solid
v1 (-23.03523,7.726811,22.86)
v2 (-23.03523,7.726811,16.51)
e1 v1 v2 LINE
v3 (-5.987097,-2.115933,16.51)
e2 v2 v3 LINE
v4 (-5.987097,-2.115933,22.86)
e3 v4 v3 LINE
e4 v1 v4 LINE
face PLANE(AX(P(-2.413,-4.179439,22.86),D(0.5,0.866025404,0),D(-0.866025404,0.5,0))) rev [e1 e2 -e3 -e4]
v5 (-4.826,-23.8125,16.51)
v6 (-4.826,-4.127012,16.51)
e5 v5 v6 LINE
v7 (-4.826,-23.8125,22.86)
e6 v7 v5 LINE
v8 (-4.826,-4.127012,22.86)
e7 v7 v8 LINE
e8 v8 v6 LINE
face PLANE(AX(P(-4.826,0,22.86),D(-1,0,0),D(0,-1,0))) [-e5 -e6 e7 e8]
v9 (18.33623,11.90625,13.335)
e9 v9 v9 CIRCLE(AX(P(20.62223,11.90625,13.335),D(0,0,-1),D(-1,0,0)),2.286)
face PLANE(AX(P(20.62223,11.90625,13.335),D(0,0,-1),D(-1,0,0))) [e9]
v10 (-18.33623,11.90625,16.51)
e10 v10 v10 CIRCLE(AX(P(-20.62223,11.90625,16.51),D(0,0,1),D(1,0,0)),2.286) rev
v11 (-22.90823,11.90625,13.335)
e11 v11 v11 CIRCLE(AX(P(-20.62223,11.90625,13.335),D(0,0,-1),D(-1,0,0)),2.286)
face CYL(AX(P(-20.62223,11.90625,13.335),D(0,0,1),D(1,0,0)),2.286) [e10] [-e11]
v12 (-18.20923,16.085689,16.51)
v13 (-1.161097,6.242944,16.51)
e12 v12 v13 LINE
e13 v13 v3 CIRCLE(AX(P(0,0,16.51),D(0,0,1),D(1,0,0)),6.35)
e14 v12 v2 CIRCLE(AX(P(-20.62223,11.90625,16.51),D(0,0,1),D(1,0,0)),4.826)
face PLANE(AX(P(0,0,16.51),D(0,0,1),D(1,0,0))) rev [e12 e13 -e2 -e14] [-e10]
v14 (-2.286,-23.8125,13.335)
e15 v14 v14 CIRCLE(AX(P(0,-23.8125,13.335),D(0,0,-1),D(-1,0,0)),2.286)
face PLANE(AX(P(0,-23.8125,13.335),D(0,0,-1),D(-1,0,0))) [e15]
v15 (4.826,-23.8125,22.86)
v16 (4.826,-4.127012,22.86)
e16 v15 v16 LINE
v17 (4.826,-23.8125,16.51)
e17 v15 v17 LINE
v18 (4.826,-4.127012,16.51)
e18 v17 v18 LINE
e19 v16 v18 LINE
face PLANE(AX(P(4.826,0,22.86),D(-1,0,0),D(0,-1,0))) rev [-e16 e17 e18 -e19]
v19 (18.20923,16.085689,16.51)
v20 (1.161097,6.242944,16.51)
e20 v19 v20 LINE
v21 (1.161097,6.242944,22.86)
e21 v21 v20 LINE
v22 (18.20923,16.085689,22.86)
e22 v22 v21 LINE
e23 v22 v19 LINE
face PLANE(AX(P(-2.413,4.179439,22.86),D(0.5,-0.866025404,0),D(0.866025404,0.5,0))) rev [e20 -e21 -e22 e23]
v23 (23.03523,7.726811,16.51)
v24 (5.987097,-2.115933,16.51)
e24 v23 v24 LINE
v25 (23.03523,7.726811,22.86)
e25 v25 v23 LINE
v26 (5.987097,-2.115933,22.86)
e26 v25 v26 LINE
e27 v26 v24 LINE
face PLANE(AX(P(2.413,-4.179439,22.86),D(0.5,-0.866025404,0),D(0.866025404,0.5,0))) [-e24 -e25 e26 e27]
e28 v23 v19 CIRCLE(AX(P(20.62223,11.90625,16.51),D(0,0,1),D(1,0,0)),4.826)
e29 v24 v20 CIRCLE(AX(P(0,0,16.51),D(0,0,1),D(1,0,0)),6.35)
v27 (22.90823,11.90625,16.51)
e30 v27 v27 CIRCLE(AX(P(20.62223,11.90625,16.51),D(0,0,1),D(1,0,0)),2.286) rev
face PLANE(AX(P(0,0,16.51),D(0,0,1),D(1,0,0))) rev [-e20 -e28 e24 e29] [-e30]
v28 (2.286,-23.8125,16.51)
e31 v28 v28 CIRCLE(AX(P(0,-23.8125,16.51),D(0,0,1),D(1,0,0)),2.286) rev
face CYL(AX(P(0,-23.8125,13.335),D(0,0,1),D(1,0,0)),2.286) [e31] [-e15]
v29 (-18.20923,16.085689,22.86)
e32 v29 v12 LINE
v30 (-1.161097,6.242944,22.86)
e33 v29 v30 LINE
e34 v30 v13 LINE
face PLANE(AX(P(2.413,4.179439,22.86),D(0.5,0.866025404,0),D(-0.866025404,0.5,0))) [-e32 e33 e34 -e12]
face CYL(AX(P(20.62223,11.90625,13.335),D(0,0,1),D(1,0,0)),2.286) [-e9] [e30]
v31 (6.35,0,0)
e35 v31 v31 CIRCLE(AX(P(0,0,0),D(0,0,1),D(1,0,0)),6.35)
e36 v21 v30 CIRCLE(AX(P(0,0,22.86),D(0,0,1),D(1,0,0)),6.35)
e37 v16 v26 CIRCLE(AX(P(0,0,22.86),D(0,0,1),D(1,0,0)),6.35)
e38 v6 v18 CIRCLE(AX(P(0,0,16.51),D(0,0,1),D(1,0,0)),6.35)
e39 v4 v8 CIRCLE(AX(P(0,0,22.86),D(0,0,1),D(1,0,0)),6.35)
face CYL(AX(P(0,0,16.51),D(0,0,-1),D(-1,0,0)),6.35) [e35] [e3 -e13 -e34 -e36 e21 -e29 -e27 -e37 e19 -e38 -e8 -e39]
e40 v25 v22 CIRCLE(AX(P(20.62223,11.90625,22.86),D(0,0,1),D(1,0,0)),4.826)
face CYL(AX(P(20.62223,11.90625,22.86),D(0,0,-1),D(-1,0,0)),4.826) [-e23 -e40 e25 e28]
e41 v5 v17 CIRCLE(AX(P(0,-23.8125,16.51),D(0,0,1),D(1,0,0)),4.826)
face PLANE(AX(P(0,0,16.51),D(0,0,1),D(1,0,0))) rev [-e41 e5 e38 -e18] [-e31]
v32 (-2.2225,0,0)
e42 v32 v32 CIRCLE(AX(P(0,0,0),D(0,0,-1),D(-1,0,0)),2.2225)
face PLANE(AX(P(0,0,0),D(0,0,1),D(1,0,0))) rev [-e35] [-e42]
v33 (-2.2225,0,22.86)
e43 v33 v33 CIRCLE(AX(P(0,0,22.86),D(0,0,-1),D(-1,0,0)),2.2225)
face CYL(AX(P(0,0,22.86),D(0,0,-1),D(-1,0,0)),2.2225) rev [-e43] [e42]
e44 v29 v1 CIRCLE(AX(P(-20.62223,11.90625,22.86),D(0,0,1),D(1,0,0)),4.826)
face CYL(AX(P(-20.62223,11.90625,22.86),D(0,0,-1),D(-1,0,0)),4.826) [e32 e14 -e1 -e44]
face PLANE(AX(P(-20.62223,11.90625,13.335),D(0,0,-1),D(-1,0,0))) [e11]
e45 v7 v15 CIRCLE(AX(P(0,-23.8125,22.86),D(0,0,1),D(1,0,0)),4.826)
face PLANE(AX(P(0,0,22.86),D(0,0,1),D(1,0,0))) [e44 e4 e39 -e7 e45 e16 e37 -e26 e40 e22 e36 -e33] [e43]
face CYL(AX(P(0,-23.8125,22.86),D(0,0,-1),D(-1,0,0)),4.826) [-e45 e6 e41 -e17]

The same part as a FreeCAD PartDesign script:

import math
import FreeCAD as App
import Part
import Sketcher
Q = App.Units.Quantity

doc = App.newDocument("Part")
body = doc.addObject("PartDesign::Body", "Body")

# Sketch on XY plane
sketch1 = doc.addObject("Sketcher::SketchObject", "Sketch")
body.addObject(sketch1)
sketch1.AttachmentSupport = (doc.XY_Plane, [""])
sketch1.MapMode = "FlatFace"
sketch1.addGeometry(Part.Circle(App.Vector(0, 0, 0), App.Vector(0, 0, 1), 6.35), False)
sketch1.addConstraint(Sketcher.Constraint("Coincident", 0, 3, -1, 1))
sketch1.addConstraint(Sketcher.Constraint("Diameter", 0, Q("0.5 in")))
pad1 = doc.addObject("PartDesign::Pad", "Pad")
body.addObject(pad1)
pad1.Profile = sketch1
pad1.Length = Q("0.65 in")

# Sketch on XY plane
sketch2 = doc.addObject("Sketcher::SketchObject", "Sketch001")
body.addObject(sketch2)
sketch2.AttachmentSupport = (doc.XY_Plane, [""])
sketch2.MapMode = "FlatFace"
sketch2.AttachmentOffset = App.Placement(App.Vector(0, 0, 0.65 * 25.4), App.Rotation())
sketch2.addGeometry(Part.LineSegment(App.Vector(-4.826, -4.127012, 0), App.Vector(-4.826, -23.8125, 0)), False)
sketch2.addGeometry(Part.ArcOfCircle(Part.Circle(App.Vector(0, -23.8125, 0), App.Vector(0, 0, 1), 4.826), math.radians(180), math.radians(360)), False)
sketch2.addGeometry(Part.LineSegment(App.Vector(4.826, -23.8125, 0), App.Vector(4.826, -4.127012, 0)), False)
sketch2.addGeometry(Part.ArcOfCircle(Part.Circle(App.Vector(0, 0, 0), App.Vector(0, 0, 1), 6.35), math.radians(-40.535802), math.radians(-19.464198)), False)
sketch2.addGeometry(Part.LineSegment(App.Vector(5.987097, -2.115933, 0), App.Vector(23.03523, 7.726811, 0)), False)
sketch2.addGeometry(Part.ArcOfCircle(Part.Circle(App.Vector(20.62223, 11.90625, 0), App.Vector(0, 0, 1), 4.826), math.radians(-60), math.radians(120)), False)
sketch2.addGeometry(Part.LineSegment(App.Vector(18.20923, 16.085689, 0), App.Vector(1.161097, 6.242944, 0)), False)
sketch2.addGeometry(Part.ArcOfCircle(Part.Circle(App.Vector(0, 0, 0), App.Vector(0, 0, 1), 6.35), math.radians(79.464198), math.radians(100.535802)), False)
sketch2.addGeometry(Part.LineSegment(App.Vector(-1.161097, 6.242944, 0), App.Vector(-18.20923, 16.085689, 0)), False)
sketch2.addGeometry(Part.ArcOfCircle(Part.Circle(App.Vector(-20.62223, 11.90625, 0), App.Vector(0, 0, 1), 4.826), math.radians(60), math.radians(240)), False)
sketch2.addGeometry(Part.LineSegment(App.Vector(-23.03523, 7.726811, 0), App.Vector(-5.987097, -2.115933, 0)), False)
sketch2.addGeometry(Part.ArcOfCircle(Part.Circle(App.Vector(0, 0, 0), App.Vector(0, 0, 1), 6.35), math.radians(-160.535802), math.radians(-139.464198)), False)
sketch2.addConstraint(Sketcher.Constraint("Tangent", 0, 2, 1, 1))
sketch2.addConstraint(Sketcher.Constraint("Tangent", 1, 2, 2, 1))
sketch2.addConstraint(Sketcher.Constraint("Coincident", 2, 2, 3, 1))
sketch2.addConstraint(Sketcher.Constraint("Coincident", 3, 2, 4, 1))
sketch2.addConstraint(Sketcher.Constraint("Tangent", 4, 2, 5, 1))
sketch2.addConstraint(Sketcher.Constraint("Tangent", 5, 2, 6, 1))
sketch2.addConstraint(Sketcher.Constraint("Coincident", 6, 2, 7, 1))
sketch2.addConstraint(Sketcher.Constraint("Coincident", 7, 2, 8, 1))
sketch2.addConstraint(Sketcher.Constraint("Tangent", 8, 2, 9, 1))
sketch2.addConstraint(Sketcher.Constraint("Tangent", 9, 2, 10, 1))
sketch2.addConstraint(Sketcher.Constraint("Coincident", 10, 2, 11, 1))
sketch2.addConstraint(Sketcher.Constraint("Coincident", 11, 2, 0, 1))
sketch2.addConstraint(Sketcher.Constraint("Vertical", 0))
sketch2.addConstraint(Sketcher.Constraint("Vertical", 2))
sketch2.addConstraint(Sketcher.Constraint("Coincident", 3, 3, -1, 1))
sketch2.addConstraint(Sketcher.Constraint("Coincident", 7, 3, -1, 1))
sketch2.addConstraint(Sketcher.Constraint("Coincident", 11, 3, -1, 1))
sketch2.addConstraint(Sketcher.Constraint("Equal", 1, 5))
sketch2.addConstraint(Sketcher.Constraint("Equal", 3, 7))
sketch2.addConstraint(Sketcher.Constraint("Equal", 5, 9))
sketch2.addConstraint(Sketcher.Constraint("Equal", 7, 11))
sketch2.addConstraint(Sketcher.Constraint("Symmetric", 5, 3, 9, 3, -2))
sketch2.addConstraint(Sketcher.Constraint("PointOnObject", 1, 3, -2))
sketch2.addConstraint(Sketcher.Constraint("Parallel", 4, 6))
sketch2.addConstraint(Sketcher.Constraint("Parallel", 8, 10))
sketch2.addConstraint(Sketcher.Constraint("Horizontal", 6, 2, 7, 2))
sketch2.addConstraint(Sketcher.Constraint("Equal", 4, 6))
sketch2.addConstraint(Sketcher.Constraint("Radius", 1, Q("0.19 in")))
sketch2.addConstraint(Sketcher.Constraint("Radius", 3, Q("0.25 in")))
sketch2.addConstraint(Sketcher.Constraint("Angle", 4, Q("30 deg")))
sketch2.addConstraint(Sketcher.Constraint("DistanceY", 1, 3, -1, 1, Q("0.9375 in")))
sketch2.addConstraint(Sketcher.Constraint("DistanceY", -1, 1, 5, 3, Q("0.46875 in")))
pad2 = doc.addObject("PartDesign::Pad", "Pad001")
body.addObject(pad2)
pad2.Profile = sketch2
pad2.Length = Q("0.25 in")

# Sketch on XY plane
sketch3 = doc.addObject("Sketcher::SketchObject", "Sketch002")
body.addObject(sketch3)
sketch3.AttachmentSupport = (doc.XY_Plane, [""])
sketch3.MapMode = "FlatFace"
sketch3.AttachmentOffset = App.Placement(App.Vector(0, 0, 0.65 * 25.4), App.Rotation())
sketch3.addGeometry(Part.Circle(App.Vector(0, -23.8125, 0), App.Vector(0, 0, 1), 2.286), False)
sketch3.addGeometry(Part.Circle(App.Vector(20.62223, 11.90625, 0), App.Vector(0, 0, 1), 2.286), False)
sketch3.addGeometry(Part.Circle(App.Vector(-20.62223, 11.90625, 0), App.Vector(0, 0, 1), 2.286), False)
sketch3.addConstraint(Sketcher.Constraint("Equal", 0, 1))
sketch3.addConstraint(Sketcher.Constraint("Equal", 1, 2))
sketch3.addConstraint(Sketcher.Constraint("Symmetric", 1, 3, 2, 3, -2))
sketch3.addConstraint(Sketcher.Constraint("PointOnObject", 0, 3, -2))
sketch3.addConstraint(Sketcher.Constraint("Diameter", 0, Q("0.18 in")))
sketch3.addConstraint(Sketcher.Constraint("DistanceY", 0, 3, -1, 1, Q("0.9375 in")))
sketch3.addConstraint(Sketcher.Constraint("DistanceY", -1, 1, 1, 3, Q("0.46875 in")))
sketch3.addConstraint(Sketcher.Constraint("DistanceX", -1, 1, 1, 3, 20.62223))
pad3 = doc.addObject("PartDesign::Pad", "Pad002")
body.addObject(pad3)
pad3.Profile = sketch3
pad3.Length = Q("0.125 in")
pad3.Reversed = True

# Sketch on XY plane
sketch4 = doc.addObject("Sketcher::SketchObject", "Sketch003")
body.addObject(sketch4)
sketch4.AttachmentSupport = (doc.XY_Plane, [""])
sketch4.MapMode = "FlatFace"
sketch4.addGeometry(Part.Circle(App.Vector(0, 0, 0), App.Vector(0, 0, 1), 2.2225), False)
sketch4.addConstraint(Sketcher.Constraint("Coincident", 0, 3, -1, 1))
sketch4.addConstraint(Sketcher.Constraint("Diameter", 0, Q("0.175 in")))
pocket1 = doc.addObject("PartDesign::Pocket", "Pocket")
body.addObject(pocket1)
pocket1.Profile = sketch4
pocket1.Type = "ThroughAll"
pocket1.Reversed = True

doc.recompute()
